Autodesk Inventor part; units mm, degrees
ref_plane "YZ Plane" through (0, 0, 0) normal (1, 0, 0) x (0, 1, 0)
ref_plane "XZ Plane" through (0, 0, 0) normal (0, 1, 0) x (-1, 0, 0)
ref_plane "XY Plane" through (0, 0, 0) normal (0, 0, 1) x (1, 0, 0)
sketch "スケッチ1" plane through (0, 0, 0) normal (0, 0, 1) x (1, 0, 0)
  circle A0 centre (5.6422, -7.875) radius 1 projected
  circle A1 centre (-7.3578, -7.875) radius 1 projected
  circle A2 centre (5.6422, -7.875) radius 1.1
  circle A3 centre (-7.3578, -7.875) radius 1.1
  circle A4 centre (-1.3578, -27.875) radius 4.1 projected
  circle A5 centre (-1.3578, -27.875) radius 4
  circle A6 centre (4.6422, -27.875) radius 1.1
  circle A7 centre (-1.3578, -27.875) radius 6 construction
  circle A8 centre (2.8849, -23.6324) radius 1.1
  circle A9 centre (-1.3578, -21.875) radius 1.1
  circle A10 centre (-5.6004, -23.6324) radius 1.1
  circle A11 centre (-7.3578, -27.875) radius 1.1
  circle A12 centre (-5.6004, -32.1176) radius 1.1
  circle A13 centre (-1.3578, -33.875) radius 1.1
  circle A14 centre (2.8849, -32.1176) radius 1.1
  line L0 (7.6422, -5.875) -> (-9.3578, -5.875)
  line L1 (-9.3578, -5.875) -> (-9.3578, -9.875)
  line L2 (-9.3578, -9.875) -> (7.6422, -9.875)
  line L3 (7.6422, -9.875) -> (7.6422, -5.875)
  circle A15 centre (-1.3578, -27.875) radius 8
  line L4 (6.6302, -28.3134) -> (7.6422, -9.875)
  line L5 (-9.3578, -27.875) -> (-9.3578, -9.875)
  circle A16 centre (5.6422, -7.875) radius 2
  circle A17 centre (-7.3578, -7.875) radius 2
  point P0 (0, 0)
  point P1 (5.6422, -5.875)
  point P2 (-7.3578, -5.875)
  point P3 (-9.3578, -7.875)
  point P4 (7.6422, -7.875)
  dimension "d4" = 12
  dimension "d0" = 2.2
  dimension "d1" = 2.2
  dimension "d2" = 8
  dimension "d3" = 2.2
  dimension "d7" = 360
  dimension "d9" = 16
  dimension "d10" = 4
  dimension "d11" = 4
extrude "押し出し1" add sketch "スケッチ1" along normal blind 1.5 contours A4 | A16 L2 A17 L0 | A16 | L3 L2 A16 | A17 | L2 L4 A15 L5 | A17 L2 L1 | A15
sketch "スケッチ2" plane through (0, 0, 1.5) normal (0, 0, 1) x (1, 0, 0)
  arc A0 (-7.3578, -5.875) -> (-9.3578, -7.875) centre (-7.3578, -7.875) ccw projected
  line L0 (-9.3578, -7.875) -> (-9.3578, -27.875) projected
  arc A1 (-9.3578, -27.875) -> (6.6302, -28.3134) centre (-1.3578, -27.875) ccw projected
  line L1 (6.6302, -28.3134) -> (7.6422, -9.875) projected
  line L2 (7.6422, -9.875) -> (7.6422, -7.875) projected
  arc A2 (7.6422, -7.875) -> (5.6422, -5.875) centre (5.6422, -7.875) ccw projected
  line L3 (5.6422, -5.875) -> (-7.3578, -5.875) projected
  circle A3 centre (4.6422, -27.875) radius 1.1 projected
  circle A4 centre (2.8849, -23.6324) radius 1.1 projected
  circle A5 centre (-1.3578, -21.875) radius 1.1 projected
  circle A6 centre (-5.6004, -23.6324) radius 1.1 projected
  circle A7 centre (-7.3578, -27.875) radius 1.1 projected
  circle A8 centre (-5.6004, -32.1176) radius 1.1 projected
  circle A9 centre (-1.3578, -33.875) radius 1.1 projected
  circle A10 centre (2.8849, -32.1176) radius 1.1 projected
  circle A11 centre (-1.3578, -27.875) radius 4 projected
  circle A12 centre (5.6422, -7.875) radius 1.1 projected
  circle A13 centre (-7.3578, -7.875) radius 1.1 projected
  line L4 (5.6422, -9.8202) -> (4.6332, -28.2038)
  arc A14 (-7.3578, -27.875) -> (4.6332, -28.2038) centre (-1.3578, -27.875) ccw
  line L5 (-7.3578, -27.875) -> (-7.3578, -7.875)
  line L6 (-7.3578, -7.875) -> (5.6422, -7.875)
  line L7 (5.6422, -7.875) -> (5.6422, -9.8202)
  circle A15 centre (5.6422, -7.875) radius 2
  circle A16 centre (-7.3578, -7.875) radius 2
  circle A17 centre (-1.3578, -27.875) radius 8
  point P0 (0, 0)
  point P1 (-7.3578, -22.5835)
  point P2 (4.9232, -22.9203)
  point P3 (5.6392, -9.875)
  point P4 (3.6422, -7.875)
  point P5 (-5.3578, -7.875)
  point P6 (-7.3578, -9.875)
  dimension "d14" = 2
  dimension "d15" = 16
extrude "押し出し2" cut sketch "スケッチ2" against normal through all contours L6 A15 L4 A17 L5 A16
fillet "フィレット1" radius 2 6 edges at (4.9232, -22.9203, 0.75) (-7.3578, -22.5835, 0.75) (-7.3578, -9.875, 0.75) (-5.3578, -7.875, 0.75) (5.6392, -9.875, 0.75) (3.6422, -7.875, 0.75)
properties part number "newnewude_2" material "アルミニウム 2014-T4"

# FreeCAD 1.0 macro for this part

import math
import FreeCAD as App
import Part
import Sketcher
from FreeCAD import Vector
Q = App.Units.Quantity


def edges_at(feature, points):
    """Names of the edges that pass closest to the given points."""
    edges = feature.Shape.Edges
    near = lambda p: min(range(len(edges)), key=lambda i: edges[i].distToShape(Part.Vertex(*p))[0])
    return sorted({f"Edge{near(p) + 1}" for p in points})

doc = App.newDocument("Part")
body = doc.addObject("PartDesign::Body", "Body")

# Sketch on XY plane
sketch1 = body.newObject("Sketcher::SketchObject", "Sketch")
sketch1.AttachmentSupport = (doc.getObject("XY_Plane"), [""])
sketch1.MapMode = "FlatFace"
sketch1.addGeometry([
    Part.ArcOfCircle(Part.Circle(Vector(-1.4, -27.9, 0), Vector(0, 0, 1), 8), math.radians(180), math.radians(357)),  # 0
    Part.LineSegment(Vector(6.6, -28.3, 0), Vector(7.6, -9.9, 0)),  # 1
    Part.LineSegment(Vector(7.6, -9.9, 0), Vector(7.6, -7.9, 0)),  # 2
    Part.ArcOfCircle(Part.Circle(Vector(5.6, -7.9, 0), Vector(0, 0, 1), 2), math.radians(0), math.radians(90)),  # 3
    Part.LineSegment(Vector(5.6, -5.9, 0), Vector(-7.4, -5.9, 0)),  # 4
    Part.ArcOfCircle(Part.Circle(Vector(-7.4, -7.9, 0), Vector(0, 0, 1), 2), math.radians(90), math.radians(180)),  # 5
    Part.LineSegment(Vector(-9.4, -7.9, 0), Vector(-9.4, -27.9, 0)),  # 6
    Part.Circle(Vector(-1.4, -27.9, 0), Vector(0, 0, 1), 4),  # 7
    Part.Circle(Vector(-5.6, -32.1, 0), Vector(0, 0, 1), 1.1),  # 8
    Part.Circle(Vector(-1.4, -33.9, 0), Vector(0, 0, 1), 1.1),  # 9
    Part.Circle(Vector(-7.4, -27.9, 0), Vector(0, 0, 1), 1.1),  # 10
    Part.Circle(Vector(-5.6, -23.6, 0), Vector(0, 0, 1), 1.1),  # 11
    Part.Circle(Vector(4.6, -27.9, 0), Vector(0, 0, 1), 1.1),  # 12
    Part.Circle(Vector(-1.4, -21.9, 0), Vector(0, 0, 1), 1.1),  # 13
    Part.Circle(Vector(2.9, -32.1, 0), Vector(0, 0, 1), 1.1),  # 14
    Part.Circle(Vector(2.9, -23.6, 0), Vector(0, 0, 1), 1.1),  # 15
    Part.Circle(Vector(5.6, -7.9, 0), Vector(0, 0, 1), 1.1),  # 16
    Part.Circle(Vector(-7.4, -7.9, 0), Vector(0, 0, 1), 1.1),  # 17
], False)
sketch1.addConstraint([
    Sketcher.Constraint("Tangent", 0, 2, 1, 1),
    Sketcher.Constraint("Coincident", 1, 2, 2, 1),
    Sketcher.Constraint("Tangent", 2, 2, 3, 1),
    Sketcher.Constraint("Tangent", 3, 2, 4, 1),
    Sketcher.Constraint("Tangent", 4, 2, 5, 1),
    Sketcher.Constraint("Tangent", 5, 2, 6, 1),
    Sketcher.Constraint("Tangent", 6, 2, 0, 1),
    Sketcher.Constraint("Vertical", 2),
    Sketcher.Constraint("Horizontal", 4),
    Sketcher.Constraint("Vertical", 6),
    Sketcher.Constraint("Coincident", 7, 3, 0, 3),
    Sketcher.Constraint("Coincident", 16, 3, 3, 3),
    Sketcher.Constraint("Coincident", 17, 3, 5, 3),
    Sketcher.Constraint("Equal", 3, 5),
    Sketcher.Constraint("Equal", 8, 9),
    Sketcher.Constraint("Equal", 9, 10),
    Sketcher.Constraint("Equal", 10, 11),
    Sketcher.Constraint("Equal", 11, 12),
    Sketcher.Constraint("Equal", 12, 13),
    Sketcher.Constraint("Equal", 13, 14),
    Sketcher.Constraint("Equal", 14, 15),
    Sketcher.Constraint("Equal", 15, 16),
    Sketcher.Constraint("Equal", 16, 17),
    Sketcher.Constraint("Horizontal", 7, 3, 10, 3),
    Sketcher.Constraint("Horizontal", 10, 3, 12, 3),
    Sketcher.Constraint("Horizontal", 8, 3, 14, 3),
    Sketcher.Constraint("Horizontal", 11, 3, 15, 3),
    Sketcher.Constraint("Vertical", 7, 3, 9, 3),
    Sketcher.Constraint("Vertical", 5, 3, 10, 3),
    Sketcher.Constraint("Vertical", 8, 3, 11, 3),
    Sketcher.Constraint("Vertical", 9, 3, 13, 3),
    Sketcher.Constraint("Vertical", 14, 3, 15, 3),
    Sketcher.Constraint("Diameter", 7, Q("8 mm")),
    Sketcher.Constraint("Radius", 0, Q("8 mm")),
    Sketcher.Constraint("Radius", 3, Q("2 mm")),
    Sketcher.Constraint("Diameter", 8, Q("2.2 mm")),
    Sketcher.Constraint("DistanceY", 13, 3, 1, 2, Q("12 mm")),
    Sketcher.Constraint("DistanceY", 1, 2, 3, 2, Q("4 mm")),
    Sketcher.Constraint("DistanceX", 4, 2, 4, 1, Q("13 mm")),
    Sketcher.Constraint("DistanceY", 6, 2, 6, 1, Q("20 mm")),
    Sketcher.Constraint("DistanceY", 9, 3, 0, 3, Q("6 mm")),
    Sketcher.Constraint("DistanceX", 0, 3, 12, 3, Q("6 mm")),
    Sketcher.Constraint("DistanceY", 0, 3, -1, 1, Q("27.875 mm")),
    Sketcher.Constraint("DistanceX", -1, 1, 14, 3, Q("2.885 mm")),
    Sketcher.Constraint("DistanceY", 0, 2, 15, 3, Q("4.681 mm")),
    Sketcher.Constraint("DistanceX", 0, 3, -1, 1, Q("1.3578 mm")),
    Sketcher.Constraint("DistanceX", 8, 3, -1, 1, Q("5.6004 mm")),
    Sketcher.Constraint("DistanceY", 8, 3, -1, 1, Q("32.1176 mm")),
])
pad1 = body.newObject("PartDesign::Pad", "Pad")
pad1.Profile = sketch1
pad1.Length = 1.5

# Sketch on XY plane
sketch2 = body.newObject("Sketcher::SketchObject", "Sketch001")
sketch2.AttachmentSupport = (doc.getObject("XY_Plane"), [""])
sketch2.MapMode = "FlatFace"
sketch2.AttachmentOffset = App.Placement(Vector(0, 0, 1.5), App.Rotation())
sketch2.addGeometry([
    Part.LineSegment(Vector(3.6, -7.9, 0), Vector(-5.4, -7.9, 0)),  # 0
    Part.ArcOfCircle(Part.Circle(Vector(-7.4, -7.9, 0), Vector(0, 0, 1), 2), math.radians(-90), math.radians(0)),  # 1
    Part.LineSegment(Vector(-7.4, -9.9, 0), Vector(-7.4, -22.6, 0)),  # 2
    Part.ArcOfCircle(Part.Circle(Vector(-1.4, -27.9, 0), Vector(0, 0, 1), 8), math.radians(38), math.radians(139)),  # 3
    Part.LineSegment(Vector(4.9, -22.9, 0), Vector(5.6, -9.9, 0)),  # 4
    Part.ArcOfCircle(Part.Circle(Vector(5.6, -7.9, 0), Vector(0, 0, 1), 2), math.radians(180), math.radians(270)),  # 5
], False)
sketch2.addConstraint([
    Sketcher.Constraint("Coincident", 0, 2, 1, 2),
    Sketcher.Constraint("Coincident", 1, 1, 2, 1),
    Sketcher.Constraint("Coincident", 2, 2, 3, 2),
    Sketcher.Constraint("Coincident", 3, 1, 4, 1),
    Sketcher.Constraint("Coincident", 4, 2, 5, 2),
    Sketcher.Constraint("Coincident", 5, 1, 0, 1),
    Sketcher.Constraint("Horizontal", 0),
    Sketcher.Constraint("Vertical", 2),
    Sketcher.Constraint("Equal", 1, 5),
    Sketcher.Constraint("Horizontal", 1, 3, 5, 3),
    Sketcher.Constraint("Horizontal", 5, 3, 0, 2),
    Sketcher.Constraint("Radius", 1, Q("2 mm")),
    Sketcher.Constraint("Radius", 3, Q("8 mm")),
    Sketcher.Constraint("DistanceX", 1, 1, 0, 2, Q("2 mm")),
    Sketcher.Constraint("DistanceX", 0, 2, 0, 1, Q("9 mm")),
    Sketcher.Constraint("DistanceX", 1, 3, 3, 3, Q("6 mm")),
    Sketcher.Constraint("DistanceY", 3, 3, 1, 3, Q("20 mm")),
    Sketcher.Constraint("Distance", 4, Q("13.065 mm")),
    Sketcher.Constraint("DistanceY", 1, 3, -1, 1, Q("7.875 mm")),
    Sketcher.Constraint("DistanceX", 3, 3, 3, 1, Q("6.281 mm")),
    Sketcher.Constraint("DistanceX", 1, 3, -1, 1, Q("7.3578 mm")),
])
pocket1 = body.newObject("PartDesign::Pocket", "Pocket")
pocket1.Profile = sketch2
pocket1.Type = "ThroughAll"
doc.recompute()

fillet = body.newObject("PartDesign::Fillet", "Fillet")
fillet.Base = (pocket1, edges_at(pocket1, [
    (4.923, -22.92, 0.75),
    (-7.358, -22.584, 0.75),
    (-7.358, -9.875, 0.75),
    (-5.358, -7.875, 0.75),
    (5.639, -9.875, 0.75),
    (3.642, -7.875, 0.75),
]))
fillet.Radius = 2

doc.recompute()
